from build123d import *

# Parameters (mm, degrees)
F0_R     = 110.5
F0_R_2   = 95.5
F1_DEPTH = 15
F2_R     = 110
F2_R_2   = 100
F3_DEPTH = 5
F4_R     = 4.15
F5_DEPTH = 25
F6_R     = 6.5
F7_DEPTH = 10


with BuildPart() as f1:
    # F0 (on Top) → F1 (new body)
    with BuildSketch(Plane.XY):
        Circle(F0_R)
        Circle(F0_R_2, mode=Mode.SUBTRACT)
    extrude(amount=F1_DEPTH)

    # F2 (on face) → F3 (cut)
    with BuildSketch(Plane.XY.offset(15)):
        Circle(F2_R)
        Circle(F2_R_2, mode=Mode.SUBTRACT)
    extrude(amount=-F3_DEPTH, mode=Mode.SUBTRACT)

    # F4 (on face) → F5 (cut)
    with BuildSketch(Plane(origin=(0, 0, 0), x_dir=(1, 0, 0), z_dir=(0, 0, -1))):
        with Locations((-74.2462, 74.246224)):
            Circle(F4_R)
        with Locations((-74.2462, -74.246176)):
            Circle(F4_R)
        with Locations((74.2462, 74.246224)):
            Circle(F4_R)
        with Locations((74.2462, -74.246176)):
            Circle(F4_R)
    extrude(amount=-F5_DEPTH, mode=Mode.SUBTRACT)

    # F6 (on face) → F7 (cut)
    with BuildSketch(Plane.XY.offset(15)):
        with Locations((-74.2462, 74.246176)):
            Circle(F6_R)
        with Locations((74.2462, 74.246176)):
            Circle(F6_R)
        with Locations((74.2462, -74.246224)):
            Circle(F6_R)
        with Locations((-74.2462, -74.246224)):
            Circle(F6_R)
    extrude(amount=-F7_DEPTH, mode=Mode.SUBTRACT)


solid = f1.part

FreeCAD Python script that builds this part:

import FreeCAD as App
import Part
import Sketcher

V = App.Vector

doc = App.newDocument("Part")
params = doc.addObject("Spreadsheet::Sheet", "Params")
for row, (alias, value) in enumerate([
    ("sketch1_diameter", "221 mm"),
    ("sketch1_diameter2", "191 mm"),
    ("pad1_length", "15 mm"),
    ("sketch2_diameter", "220 mm"),
    ("sketch2_diameter2", "200 mm"),
    ("pocket1_length", "5 mm"),
    ("sketch3_diameter", "8.3 mm"),
    ("pocket2_length", "25 mm"),
    ("sketch4_diameter", "13 mm"),
    ("pocket3_length", "10 mm"),
], start=1):
    params.set(f"A{row}", alias)
    params.set(f"B{row}", "=" + value)
    params.setAlias(f"B{row}", alias)

body = doc.addObject("PartDesign::Body", "Body")

sketch1 = body.newObject("Sketcher::SketchObject", "Sketch")
sketch1.AttachmentSupport = (doc.getObject("XY_Plane"), [""])
sketch1.MapMode = "FlatFace"
sketch1.addGeometry([
    Part.Circle(V(0, 0, 0), V(0, 0, 1), 110),
    Part.Circle(V(0, 0, 0), V(0, 0, 1), 96),
], False)
sketch1.addConstraint([
    Sketcher.Constraint("Coincident", 0, 3, -1, 1),
    Sketcher.Constraint("Coincident", 1, 3, -1, 1),
    Sketcher.Constraint("Diameter", 0, 221.0),
    Sketcher.Constraint("Diameter", 1, 191.0),
])
sketch1.setExpression("Constraints[2]", "Params.sketch1_diameter")
sketch1.setExpression("Constraints[3]", "Params.sketch1_diameter2")
pad1 = body.newObject("PartDesign::Pad", "Pad")
pad1.Profile = sketch1
pad1.setExpression("Length", "Params.pad1_length")

sketch2 = body.newObject("Sketcher::SketchObject", "Sketch001")
sketch2.AttachmentSupport = (doc.getObject("XY_Plane"), [""])
sketch2.MapMode = "FlatFace"
sketch2.AttachmentOffset = App.Placement(V(0, 0, 15), App.Rotation())
sketch2.addGeometry([
    Part.Circle(V(0, 0, 0), V(0, 0, 1), 110),
    Part.Circle(V(0, 0, 0), V(0, 0, 1), 100),
], False)
sketch2.addConstraint([
    Sketcher.Constraint("Coincident", 0, 3, -1, 1),
    Sketcher.Constraint("Coincident", 1, 3, -1, 1),
    Sketcher.Constraint("Diameter", 0, 220.0),
    Sketcher.Constraint("Diameter", 1, 200.0),
])
sketch2.setExpression("Constraints[2]", "Params.sketch2_diameter")
sketch2.setExpression("Constraints[3]", "Params.sketch2_diameter2")
pocket1 = body.newObject("PartDesign::Pocket", "Pocket")
pocket1.Profile = sketch2
pocket1.setExpression("Length", "Params.pocket1_length")

sketch3 = body.newObject("Sketcher::SketchObject", "Sketch002")
sketch3.AttachmentSupport = (doc.getObject("XY_Plane"), [""])
sketch3.MapMode = "FlatFace"
sketch3.addGeometry([
    Part.Circle(V(-74.2, -74.2, 0), V(0, 0, 1), 4.2),
    Part.Circle(V(-74.2, 74.2, 0), V(0, 0, 1), 4.2),
    Part.Circle(V(74.2, -74.2, 0), V(0, 0, 1), 4.2),
    Part.Circle(V(74.2, 74.2, 0), V(0, 0, 1), 4.2),
], False)
sketch3.addConstraint([
    Sketcher.Constraint("Equal", 0, 1),
    Sketcher.Constraint("Equal", 1, 2),
    Sketcher.Constraint("Equal", 2, 3),
    Sketcher.Constraint("Symmetric", 0, 3, 2, 3, -2),
    Sketcher.Constraint("Symmetric", 1, 3, 3, 3, -2),
    Sketcher.Constraint("Vertical", 0, 3, 1, 3),
    Sketcher.Constraint("Diameter", 0, 8.3),
    Sketcher.Constraint("DistanceX", 0, 3, -1, 1, 74.2462),
    Sketcher.Constraint("DistanceY", 0, 3, 1, 3, 148.4924),
    Sketcher.Constraint("DistanceY", 0, 3, -1, 1, 74.246224),
])
sketch3.setExpression("Constraints[6]", "Params.sketch3_diameter")
pocket2 = body.newObject("PartDesign::Pocket", "Pocket001")
pocket2.Profile = sketch3
pocket2.setExpression("Length", "Params.pocket2_length")
pocket2.Reversed = True

sketch4 = body.newObject("Sketcher::SketchObject", "Sketch003")
sketch4.AttachmentSupport = (doc.getObject("XY_Plane"), [""])
sketch4.MapMode = "FlatFace"
sketch4.AttachmentOffset = App.Placement(V(0, 0, 15), App.Rotation())
sketch4.addGeometry([
    Part.Circle(V(-74, 74, 0), V(0, 0, 1), 6),
    Part.Circle(V(74, 74, 0), V(0, 0, 1), 6),
    Part.Circle(V(74, -74, 0), V(0, 0, 1), 6),
    Part.Circle(V(-74, -74, 0), V(0, 0, 1), 6),
], False)
sketch4.addConstraint([
    Sketcher.Constraint("Equal", 0, 1),
    Sketcher.Constraint("Equal", 1, 2),
    Sketcher.Constraint("Equal", 2, 3),
    Sketcher.Constraint("Symmetric", 0, 3, 1, 3, -2),
    Sketcher.Constraint("Symmetric", 2, 3, 3, 3, -2),
    Sketcher.Constraint("Vertical", 1, 3, 2, 3),
    Sketcher.Constraint("Diameter", 0, 13.0),
    Sketcher.Constraint("DistanceX", 0, 3, -1, 1, 74.2462),
    Sketcher.Constraint("DistanceY", 2, 3, 1, 3, 148.4924),
    Sketcher.Constraint("DistanceY", -1, 1, 0, 3, 74.246176),
])
sketch4.setExpression("Constraints[6]", "Params.sketch4_diameter")
pocket3 = body.newObject("PartDesign::Pocket", "Pocket002")
pocket3.Profile = sketch4
pocket3.setExpression("Length", "Params.pocket3_length")

doc.recompute()
